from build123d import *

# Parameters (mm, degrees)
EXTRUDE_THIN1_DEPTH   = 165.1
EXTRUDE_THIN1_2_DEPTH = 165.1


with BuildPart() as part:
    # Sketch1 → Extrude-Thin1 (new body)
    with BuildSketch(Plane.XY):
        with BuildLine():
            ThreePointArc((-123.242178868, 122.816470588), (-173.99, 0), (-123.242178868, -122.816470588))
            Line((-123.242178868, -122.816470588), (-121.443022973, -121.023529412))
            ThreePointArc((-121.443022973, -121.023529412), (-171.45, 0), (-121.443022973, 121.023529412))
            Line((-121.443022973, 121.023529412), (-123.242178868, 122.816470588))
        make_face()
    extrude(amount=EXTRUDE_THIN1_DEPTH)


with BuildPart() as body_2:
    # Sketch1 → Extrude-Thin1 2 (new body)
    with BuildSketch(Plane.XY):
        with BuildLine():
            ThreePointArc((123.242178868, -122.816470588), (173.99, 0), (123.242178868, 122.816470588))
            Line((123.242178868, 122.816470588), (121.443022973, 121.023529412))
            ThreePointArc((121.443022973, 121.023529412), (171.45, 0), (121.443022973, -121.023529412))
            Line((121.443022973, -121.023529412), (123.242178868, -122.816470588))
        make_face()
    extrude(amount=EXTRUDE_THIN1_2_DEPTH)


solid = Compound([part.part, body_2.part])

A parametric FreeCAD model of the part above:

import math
import FreeCAD as App
import Part
import Sketcher
from FreeCAD import Vector
Q = App.Units.Quantity

doc = App.newDocument("Part")
body = doc.addObject("PartDesign::Body", "Body")

# Sketch on XY plane
sketch1 = body.newObject("Sketcher::SketchObject", "Sketch")
sketch1.AttachmentSupport = (doc.getObject("XY_Plane"), [""])
sketch1.MapMode = "FlatFace"
sketch1.addGeometry([
    Part.ArcOfCircle(Part.Circle(Vector(0, 0, 0), Vector(0, 0, 1), 173.99), math.radians(135.099128), math.radians(224.900872)),
    Part.LineSegment(Vector(-123.242179, -122.816471, 0), Vector(-121.443023, -121.023529, 0)),
    Part.ArcOfCircle(Part.Circle(Vector(0, 0, 0), Vector(0, 0, 1), 171.45), math.radians(135.099128), math.radians(224.900872)),
    Part.LineSegment(Vector(-121.443023, 121.023529, 0), Vector(-123.242179, 122.816471, 0)),
], False)
sketch1.addConstraint([
    Sketcher.Constraint("Coincident", 0, 2, 1, 1),
    Sketcher.Constraint("Coincident", 1, 2, 2, 2),
    Sketcher.Constraint("Coincident", 2, 1, 3, 1),
    Sketcher.Constraint("Coincident", 3, 2, 0, 1),
    Sketcher.Constraint("Coincident", 0, 3, -1, 1),
    Sketcher.Constraint("Coincident", 2, 3, -1, 1),
    Sketcher.Constraint("Vertical", 1, 2, 2, 1),
    Sketcher.Constraint("Vertical", 0, 2, 3, 2),
    Sketcher.Constraint("Radius", 0, Q("6.85 in")),
    Sketcher.Constraint("Radius", 2, Q("6.75 in")),
    Sketcher.Constraint("DistanceY", 0, 2, 2, 1, Q("9.6 in")),
    Sketcher.Constraint("DistanceX", 0, 2, -1, 1, 123.242179),
])
pad1 = body.newObject("PartDesign::Pad", "Pad")
pad1.Profile = sketch1
pad1.Length = Q("6.5 in")
body2 = doc.addObject("PartDesign::Body", "Body001")

# Sketch on XY plane
sketch2 = body2.newObject("Sketcher::SketchObject", "Sketch001")
sketch2.AttachmentSupport = (doc.getObject("XY_Plane001"), [""])
sketch2.MapMode = "FlatFace"
sketch2.addGeometry([
    Part.ArcOfCircle(Part.Circle(Vector(0, 0, 0), Vector(0, 0, 1), 173.99), math.radians(-44.900872), math.radians(44.900872)),
    Part.LineSegment(Vector(123.242179, 122.816471, 0), Vector(121.443023, 121.023529, 0)),
    Part.ArcOfCircle(Part.Circle(Vector(0, 0, 0), Vector(0, 0, 1), 171.45), math.radians(-44.900872), math.radians(44.900872)),
    Part.LineSegment(Vector(121.443023, -121.023529, 0), Vector(123.242179, -122.816471, 0)),
], False)
sketch2.addConstraint([
    Sketcher.Constraint("Coincident", 0, 2, 1, 1),
    Sketcher.Constraint("Coincident", 1, 2, 2, 2),
    Sketcher.Constraint("Coincident", 2, 1, 3, 1),
    Sketcher.Constraint("Coincident", 3, 2, 0, 1),
    Sketcher.Constraint("Coincident", 0, 3, -1, 1),
    Sketcher.Constraint("Coincident", 2, 3, -1, 1),
    Sketcher.Constraint("Vertical", 1, 2, 2, 1),
    Sketcher.Constraint("Vertical", 0, 2, 3, 2),
    Sketcher.Constraint("Radius", 0, Q("6.85 in")),
    Sketcher.Constraint("Radius", 2, Q("6.75 in")),
    Sketcher.Constraint("DistanceY", 2, 1, 0, 2, Q("9.6 in")),
    Sketcher.Constraint("DistanceX", -1, 1, 0, 2, 123.242179),
])
pad2 = body2.newObject("PartDesign::Pad", "Pad001")
pad2.Profile = sketch2
pad2.Length = Q("6.5 in")

doc.recompute()
